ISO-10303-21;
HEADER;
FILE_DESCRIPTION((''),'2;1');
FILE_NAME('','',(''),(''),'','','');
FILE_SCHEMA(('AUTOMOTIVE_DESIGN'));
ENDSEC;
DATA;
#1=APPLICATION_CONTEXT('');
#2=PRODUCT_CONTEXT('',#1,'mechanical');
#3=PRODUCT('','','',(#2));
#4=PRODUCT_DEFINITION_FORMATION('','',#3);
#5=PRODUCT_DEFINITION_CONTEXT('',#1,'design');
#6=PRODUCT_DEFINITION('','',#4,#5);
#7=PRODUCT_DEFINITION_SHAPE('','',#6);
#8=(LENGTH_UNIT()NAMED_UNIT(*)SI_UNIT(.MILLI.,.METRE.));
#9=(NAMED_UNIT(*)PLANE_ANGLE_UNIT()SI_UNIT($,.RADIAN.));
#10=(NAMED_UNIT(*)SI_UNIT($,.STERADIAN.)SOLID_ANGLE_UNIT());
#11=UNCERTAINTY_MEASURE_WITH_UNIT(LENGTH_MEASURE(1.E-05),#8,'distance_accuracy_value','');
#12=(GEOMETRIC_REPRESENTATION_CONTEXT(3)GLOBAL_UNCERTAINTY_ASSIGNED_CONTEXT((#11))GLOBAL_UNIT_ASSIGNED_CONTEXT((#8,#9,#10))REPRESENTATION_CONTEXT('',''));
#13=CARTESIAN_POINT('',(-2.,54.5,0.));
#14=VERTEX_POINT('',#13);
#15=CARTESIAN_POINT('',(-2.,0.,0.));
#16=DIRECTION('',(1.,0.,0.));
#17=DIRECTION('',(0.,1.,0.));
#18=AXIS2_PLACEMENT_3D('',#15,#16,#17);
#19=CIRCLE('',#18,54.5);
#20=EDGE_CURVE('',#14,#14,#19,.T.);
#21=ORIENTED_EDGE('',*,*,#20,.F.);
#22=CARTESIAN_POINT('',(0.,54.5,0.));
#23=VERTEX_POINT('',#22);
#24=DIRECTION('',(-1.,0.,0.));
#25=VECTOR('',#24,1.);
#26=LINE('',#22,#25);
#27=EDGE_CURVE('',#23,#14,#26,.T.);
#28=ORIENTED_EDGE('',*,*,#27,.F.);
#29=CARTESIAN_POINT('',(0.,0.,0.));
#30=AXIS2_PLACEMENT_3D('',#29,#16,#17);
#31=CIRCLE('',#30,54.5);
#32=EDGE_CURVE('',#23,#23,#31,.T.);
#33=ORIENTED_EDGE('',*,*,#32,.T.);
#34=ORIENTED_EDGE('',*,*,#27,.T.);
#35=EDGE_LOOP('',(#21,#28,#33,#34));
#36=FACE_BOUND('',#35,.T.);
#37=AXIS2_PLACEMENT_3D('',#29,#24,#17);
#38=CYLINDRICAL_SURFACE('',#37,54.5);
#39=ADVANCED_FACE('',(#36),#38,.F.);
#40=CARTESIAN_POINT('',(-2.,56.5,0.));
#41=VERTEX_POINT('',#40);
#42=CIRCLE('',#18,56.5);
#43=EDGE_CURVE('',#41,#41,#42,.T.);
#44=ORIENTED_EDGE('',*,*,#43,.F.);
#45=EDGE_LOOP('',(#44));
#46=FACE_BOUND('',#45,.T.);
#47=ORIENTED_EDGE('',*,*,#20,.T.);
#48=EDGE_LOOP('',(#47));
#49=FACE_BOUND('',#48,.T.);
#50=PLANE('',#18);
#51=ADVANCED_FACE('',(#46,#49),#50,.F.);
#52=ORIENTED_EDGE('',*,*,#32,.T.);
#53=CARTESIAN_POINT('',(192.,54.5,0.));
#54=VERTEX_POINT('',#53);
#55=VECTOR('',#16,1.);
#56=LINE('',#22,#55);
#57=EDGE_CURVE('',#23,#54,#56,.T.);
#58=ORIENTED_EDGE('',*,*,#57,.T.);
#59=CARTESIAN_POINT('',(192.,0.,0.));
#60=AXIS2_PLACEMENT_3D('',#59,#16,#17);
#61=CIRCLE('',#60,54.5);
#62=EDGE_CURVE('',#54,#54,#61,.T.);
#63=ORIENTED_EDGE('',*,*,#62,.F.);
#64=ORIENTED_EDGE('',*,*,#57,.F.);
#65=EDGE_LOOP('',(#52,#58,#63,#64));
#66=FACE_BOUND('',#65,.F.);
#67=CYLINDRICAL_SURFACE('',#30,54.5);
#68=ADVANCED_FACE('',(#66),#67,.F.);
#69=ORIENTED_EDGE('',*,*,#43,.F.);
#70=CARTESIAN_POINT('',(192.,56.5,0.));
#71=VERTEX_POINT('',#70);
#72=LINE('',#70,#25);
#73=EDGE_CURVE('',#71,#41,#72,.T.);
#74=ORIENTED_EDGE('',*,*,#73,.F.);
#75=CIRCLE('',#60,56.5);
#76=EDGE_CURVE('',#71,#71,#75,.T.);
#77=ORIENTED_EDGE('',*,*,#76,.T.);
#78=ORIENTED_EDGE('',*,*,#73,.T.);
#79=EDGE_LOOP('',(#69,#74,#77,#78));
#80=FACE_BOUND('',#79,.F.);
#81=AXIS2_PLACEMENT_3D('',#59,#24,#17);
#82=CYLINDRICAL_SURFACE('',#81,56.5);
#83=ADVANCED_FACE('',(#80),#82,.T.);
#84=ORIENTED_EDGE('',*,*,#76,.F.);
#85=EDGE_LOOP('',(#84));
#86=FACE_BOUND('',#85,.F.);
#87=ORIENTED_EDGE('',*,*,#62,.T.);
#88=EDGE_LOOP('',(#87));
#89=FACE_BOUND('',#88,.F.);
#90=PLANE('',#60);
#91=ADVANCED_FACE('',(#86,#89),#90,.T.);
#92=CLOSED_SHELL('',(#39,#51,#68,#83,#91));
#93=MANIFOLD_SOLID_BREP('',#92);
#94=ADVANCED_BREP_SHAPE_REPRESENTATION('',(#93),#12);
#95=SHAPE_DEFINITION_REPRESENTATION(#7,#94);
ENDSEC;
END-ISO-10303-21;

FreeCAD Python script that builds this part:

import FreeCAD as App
import Part
import Sketcher

V = App.Vector


def add_polygon(sketch, points):
    """Adds a closed chain of lines whose ends are joined by coincident constraints."""
    first, n = sketch.GeometryCount, len(points)
    for a, b in zip(points, points[1:] + points[:1]):
        sketch.addGeometry(Part.LineSegment(App.Vector(*a, 0), App.Vector(*b, 0)), False)
    for i in range(n):
        sketch.addConstraint(Sketcher.Constraint("Coincident", first + i, 2, first + (i + 1) % n, 1))

doc = App.newDocument("Part")
params = doc.addObject("Spreadsheet::Sheet", "Params")
for row, (alias, value) in enumerate([
    ("sketch1_height", "2 mm"),
    ("revolution_angle", "360 deg"),
], start=1):
    params.set(f"A{row}", alias)
    params.set(f"B{row}", "=" + value)
    params.setAlias(f"B{row}", alias)

body = doc.addObject("PartDesign::Body", "Body")

# Sketch on XY plane
sketch1 = body.newObject("Sketcher::SketchObject", "Sketch")
sketch1.AttachmentSupport = (doc.getObject("XY_Plane"), [""])
sketch1.MapMode = "FlatFace"
add_polygon(sketch1, [(-2, 54.5), (192, 54.5), (192, 56.5), (-2, 56.5)])  # lines 0-3
sketch1.addConstraint(Sketcher.Constraint("Horizontal", 0))
sketch1.addConstraint(Sketcher.Constraint("Vertical", 1))
sketch1.addConstraint(Sketcher.Constraint("Horizontal", 2))
sketch1.addConstraint(Sketcher.Constraint("Vertical", 3))
sketch1.addConstraint(Sketcher.Constraint("DistanceY", 1, 1, 1, 2, 2.0))
sketch1.addConstraint(Sketcher.Constraint("DistanceX", -1, 1, 0, 2, 192.0))
sketch1.addConstraint(Sketcher.Constraint("DistanceX", 2, 2, -1, 1, 2.0))
sketch1.addConstraint(Sketcher.Constraint("DistanceY", -1, 1, 0, 2, 54.5))
sketch1.setExpression("Constraints[8]", "Params.sketch1_height")
revolution = body.newObject("PartDesign::Revolution", "Revolution")
revolution.Profile = sketch1
revolution.ReferenceAxis = (sketch1, ["H_Axis"])
revolution.setExpression("Angle", "Params.revolution_angle")

doc.recompute()
